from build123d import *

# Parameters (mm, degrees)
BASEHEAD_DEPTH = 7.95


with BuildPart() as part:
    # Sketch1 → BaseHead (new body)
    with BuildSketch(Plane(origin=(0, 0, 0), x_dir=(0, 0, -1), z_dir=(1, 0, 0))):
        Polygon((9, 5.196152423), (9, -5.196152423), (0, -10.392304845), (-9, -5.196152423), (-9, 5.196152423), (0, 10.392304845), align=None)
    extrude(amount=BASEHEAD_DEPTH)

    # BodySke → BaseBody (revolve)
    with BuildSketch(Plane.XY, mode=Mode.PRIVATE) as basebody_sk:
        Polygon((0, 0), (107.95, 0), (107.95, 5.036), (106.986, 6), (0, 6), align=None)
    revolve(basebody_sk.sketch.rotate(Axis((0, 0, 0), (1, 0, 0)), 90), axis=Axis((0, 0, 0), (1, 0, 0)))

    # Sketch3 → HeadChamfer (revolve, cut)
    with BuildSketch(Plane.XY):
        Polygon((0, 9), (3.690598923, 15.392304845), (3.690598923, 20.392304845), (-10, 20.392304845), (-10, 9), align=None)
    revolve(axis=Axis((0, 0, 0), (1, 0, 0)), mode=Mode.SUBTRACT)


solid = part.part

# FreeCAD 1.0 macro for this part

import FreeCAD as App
import Part
import Sketcher
Q = App.Units.Quantity

doc = App.newDocument("Part")
body = doc.addObject("PartDesign::Body", "Body")

sketch1 = body.newObject("Sketcher::SketchObject", "Sketch")
sketch1.AttachmentSupport = (doc.getObject("YZ_Plane"), [""])
sketch1.MapMode = "FlatFace"
sketch1.addGeometry([
    Part.LineSegment(App.Vector(-5, -9, 0), App.Vector(5, -9, 0)),
    Part.LineSegment(App.Vector(5, -9, 0), App.Vector(10, 0, 0)),
    Part.LineSegment(App.Vector(10, 0, 0), App.Vector(5, 9, 0)),
    Part.LineSegment(App.Vector(5, 9, 0), App.Vector(-5, 9, 0)),
    Part.LineSegment(App.Vector(-5, 9, 0), App.Vector(-10, 0, 0)),
    Part.LineSegment(App.Vector(-10, 0, 0), App.Vector(-5, -9, 0)),
], False)
sketch1.addConstraint([
    Sketcher.Constraint("Coincident", 0, 2, 1, 1),
    Sketcher.Constraint("Coincident", 1, 2, 2, 1),
    Sketcher.Constraint("Coincident", 2, 2, 3, 1),
    Sketcher.Constraint("Coincident", 3, 2, 4, 1),
    Sketcher.Constraint("Coincident", 4, 2, 5, 1),
    Sketcher.Constraint("Coincident", 5, 2, 0, 1),
    Sketcher.Constraint("Horizontal", 0),
    Sketcher.Constraint("Horizontal", 3),
    Sketcher.Constraint("Symmetric", 0, 2, 3, 2, -1, 1),
    Sketcher.Constraint("Symmetric", 1, 2, 4, 2, -1, 1),
    Sketcher.Constraint("PointOnObject", 1, 2, -1),
    Sketcher.Constraint("Parallel", 2, 5),
    Sketcher.Constraint("Vertical", 0, 2, 2, 2),
    Sketcher.Constraint("Angle", 1, Q("60 deg")),
    Sketcher.Constraint("DistanceY", 0, 2, -1, 1, Q("9 mm")),
    Sketcher.Constraint("DistanceX", 0, 1, 0, 2, Q("10.392305 mm")),
])
pad1 = body.newObject("PartDesign::Pad", "Pad")
pad1.Profile = sketch1
pad1.Length = 7.95

sketch2 = body.newObject("Sketcher::SketchObject", "Sketch001")
sketch2.AttachmentSupport = (doc.getObject("XY_Plane"), [""])
sketch2.MapMode = "FlatFace"
sketch2.addGeometry([
    Part.LineSegment(App.Vector(0, 0, 0), App.Vector(108, 0, 0)),
    Part.LineSegment(App.Vector(108, 0, 0), App.Vector(108, 5, 0)),
    Part.LineSegment(App.Vector(108, 5, 0), App.Vector(107, 6, 0)),
    Part.LineSegment(App.Vector(107, 6, 0), App.Vector(0, 6, 0)),
    Part.LineSegment(App.Vector(0, 6, 0), App.Vector(0, 0, 0)),
], False)
sketch2.addConstraint([
    Sketcher.Constraint("Coincident", 0, 2, 1, 1),
    Sketcher.Constraint("Coincident", 1, 2, 2, 1),
    Sketcher.Constraint("Coincident", 2, 2, 3, 1),
    Sketcher.Constraint("Coincident", 3, 2, 4, 1),
    Sketcher.Constraint("Coincident", 4, 2, 0, 1),
    Sketcher.Constraint("Horizontal", 0),
    Sketcher.Constraint("Vertical", 1),
    Sketcher.Constraint("Horizontal", 3),
    Sketcher.Constraint("Vertical", 4),
    Sketcher.Constraint("Coincident", 4, 2, -1, 1),
    Sketcher.Constraint("DistanceY", 4, 2, 4, 1, Q("6 mm")),
    Sketcher.Constraint("Angle", 2, Q("135 deg")),
    Sketcher.Constraint("DistanceX", 0, 1, 0, 2, Q("107.95 mm")),
    Sketcher.Constraint("DistanceX", 3, 2, 3, 1, Q("106.986 mm")),
])
revolution = body.newObject("PartDesign::Revolution", "Revolution")
revolution.Profile = sketch2
revolution.ReferenceAxis = (sketch2, ["H_Axis"])
revolution.Angle = 360

sketch3 = body.newObject("Sketcher::SketchObject", "Sketch002")
sketch3.AttachmentSupport = (doc.getObject("XY_Plane"), [""])
sketch3.MapMode = "FlatFace"
sketch3.addGeometry([
    Part.LineSegment(App.Vector(0, 9, 0), App.Vector(4, 15, 0)),
    Part.LineSegment(App.Vector(4, 15, 0), App.Vector(4, 20, 0)),
    Part.LineSegment(App.Vector(4, 20, 0), App.Vector(-10, 20, 0)),
    Part.LineSegment(App.Vector(-10, 20, 0), App.Vector(-10, 9, 0)),
    Part.LineSegment(App.Vector(-10, 9, 0), App.Vector(0, 9, 0)),
], False)
sketch3.addConstraint([
    Sketcher.Constraint("Coincident", 0, 2, 1, 1),
    Sketcher.Constraint("Coincident", 1, 2, 2, 1),
    Sketcher.Constraint("Coincident", 2, 2, 3, 1),
    Sketcher.Constraint("Coincident", 3, 2, 4, 1),
    Sketcher.Constraint("Coincident", 4, 2, 0, 1),
    Sketcher.Constraint("Vertical", 1),
    Sketcher.Constraint("Horizontal", 2),
    Sketcher.Constraint("Vertical", 3),
    Sketcher.Constraint("Horizontal", 4),
    Sketcher.Constraint("PointOnObject", 4, 2, -2),
    Sketcher.Constraint("DistanceX", 4, 1, 4, 2, Q("10 mm")),
    Sketcher.Constraint("DistanceY", 1, 1, 1, 2, Q("5 mm")),
    Sketcher.Constraint("Angle", 0, Q("60 deg")),
    Sketcher.Constraint("DistanceY", -1, 1, 3, 2, Q("9 mm")),
    Sketcher.Constraint("DistanceX", 2, 2, 2, 1, Q("13.690599 mm")),
])
groove = body.newObject("PartDesign::Groove", "Groove")
groove.Profile = sketch3
groove.ReferenceAxis = (sketch3, ["H_Axis"])
groove.Angle = 360

doc.recompute()
